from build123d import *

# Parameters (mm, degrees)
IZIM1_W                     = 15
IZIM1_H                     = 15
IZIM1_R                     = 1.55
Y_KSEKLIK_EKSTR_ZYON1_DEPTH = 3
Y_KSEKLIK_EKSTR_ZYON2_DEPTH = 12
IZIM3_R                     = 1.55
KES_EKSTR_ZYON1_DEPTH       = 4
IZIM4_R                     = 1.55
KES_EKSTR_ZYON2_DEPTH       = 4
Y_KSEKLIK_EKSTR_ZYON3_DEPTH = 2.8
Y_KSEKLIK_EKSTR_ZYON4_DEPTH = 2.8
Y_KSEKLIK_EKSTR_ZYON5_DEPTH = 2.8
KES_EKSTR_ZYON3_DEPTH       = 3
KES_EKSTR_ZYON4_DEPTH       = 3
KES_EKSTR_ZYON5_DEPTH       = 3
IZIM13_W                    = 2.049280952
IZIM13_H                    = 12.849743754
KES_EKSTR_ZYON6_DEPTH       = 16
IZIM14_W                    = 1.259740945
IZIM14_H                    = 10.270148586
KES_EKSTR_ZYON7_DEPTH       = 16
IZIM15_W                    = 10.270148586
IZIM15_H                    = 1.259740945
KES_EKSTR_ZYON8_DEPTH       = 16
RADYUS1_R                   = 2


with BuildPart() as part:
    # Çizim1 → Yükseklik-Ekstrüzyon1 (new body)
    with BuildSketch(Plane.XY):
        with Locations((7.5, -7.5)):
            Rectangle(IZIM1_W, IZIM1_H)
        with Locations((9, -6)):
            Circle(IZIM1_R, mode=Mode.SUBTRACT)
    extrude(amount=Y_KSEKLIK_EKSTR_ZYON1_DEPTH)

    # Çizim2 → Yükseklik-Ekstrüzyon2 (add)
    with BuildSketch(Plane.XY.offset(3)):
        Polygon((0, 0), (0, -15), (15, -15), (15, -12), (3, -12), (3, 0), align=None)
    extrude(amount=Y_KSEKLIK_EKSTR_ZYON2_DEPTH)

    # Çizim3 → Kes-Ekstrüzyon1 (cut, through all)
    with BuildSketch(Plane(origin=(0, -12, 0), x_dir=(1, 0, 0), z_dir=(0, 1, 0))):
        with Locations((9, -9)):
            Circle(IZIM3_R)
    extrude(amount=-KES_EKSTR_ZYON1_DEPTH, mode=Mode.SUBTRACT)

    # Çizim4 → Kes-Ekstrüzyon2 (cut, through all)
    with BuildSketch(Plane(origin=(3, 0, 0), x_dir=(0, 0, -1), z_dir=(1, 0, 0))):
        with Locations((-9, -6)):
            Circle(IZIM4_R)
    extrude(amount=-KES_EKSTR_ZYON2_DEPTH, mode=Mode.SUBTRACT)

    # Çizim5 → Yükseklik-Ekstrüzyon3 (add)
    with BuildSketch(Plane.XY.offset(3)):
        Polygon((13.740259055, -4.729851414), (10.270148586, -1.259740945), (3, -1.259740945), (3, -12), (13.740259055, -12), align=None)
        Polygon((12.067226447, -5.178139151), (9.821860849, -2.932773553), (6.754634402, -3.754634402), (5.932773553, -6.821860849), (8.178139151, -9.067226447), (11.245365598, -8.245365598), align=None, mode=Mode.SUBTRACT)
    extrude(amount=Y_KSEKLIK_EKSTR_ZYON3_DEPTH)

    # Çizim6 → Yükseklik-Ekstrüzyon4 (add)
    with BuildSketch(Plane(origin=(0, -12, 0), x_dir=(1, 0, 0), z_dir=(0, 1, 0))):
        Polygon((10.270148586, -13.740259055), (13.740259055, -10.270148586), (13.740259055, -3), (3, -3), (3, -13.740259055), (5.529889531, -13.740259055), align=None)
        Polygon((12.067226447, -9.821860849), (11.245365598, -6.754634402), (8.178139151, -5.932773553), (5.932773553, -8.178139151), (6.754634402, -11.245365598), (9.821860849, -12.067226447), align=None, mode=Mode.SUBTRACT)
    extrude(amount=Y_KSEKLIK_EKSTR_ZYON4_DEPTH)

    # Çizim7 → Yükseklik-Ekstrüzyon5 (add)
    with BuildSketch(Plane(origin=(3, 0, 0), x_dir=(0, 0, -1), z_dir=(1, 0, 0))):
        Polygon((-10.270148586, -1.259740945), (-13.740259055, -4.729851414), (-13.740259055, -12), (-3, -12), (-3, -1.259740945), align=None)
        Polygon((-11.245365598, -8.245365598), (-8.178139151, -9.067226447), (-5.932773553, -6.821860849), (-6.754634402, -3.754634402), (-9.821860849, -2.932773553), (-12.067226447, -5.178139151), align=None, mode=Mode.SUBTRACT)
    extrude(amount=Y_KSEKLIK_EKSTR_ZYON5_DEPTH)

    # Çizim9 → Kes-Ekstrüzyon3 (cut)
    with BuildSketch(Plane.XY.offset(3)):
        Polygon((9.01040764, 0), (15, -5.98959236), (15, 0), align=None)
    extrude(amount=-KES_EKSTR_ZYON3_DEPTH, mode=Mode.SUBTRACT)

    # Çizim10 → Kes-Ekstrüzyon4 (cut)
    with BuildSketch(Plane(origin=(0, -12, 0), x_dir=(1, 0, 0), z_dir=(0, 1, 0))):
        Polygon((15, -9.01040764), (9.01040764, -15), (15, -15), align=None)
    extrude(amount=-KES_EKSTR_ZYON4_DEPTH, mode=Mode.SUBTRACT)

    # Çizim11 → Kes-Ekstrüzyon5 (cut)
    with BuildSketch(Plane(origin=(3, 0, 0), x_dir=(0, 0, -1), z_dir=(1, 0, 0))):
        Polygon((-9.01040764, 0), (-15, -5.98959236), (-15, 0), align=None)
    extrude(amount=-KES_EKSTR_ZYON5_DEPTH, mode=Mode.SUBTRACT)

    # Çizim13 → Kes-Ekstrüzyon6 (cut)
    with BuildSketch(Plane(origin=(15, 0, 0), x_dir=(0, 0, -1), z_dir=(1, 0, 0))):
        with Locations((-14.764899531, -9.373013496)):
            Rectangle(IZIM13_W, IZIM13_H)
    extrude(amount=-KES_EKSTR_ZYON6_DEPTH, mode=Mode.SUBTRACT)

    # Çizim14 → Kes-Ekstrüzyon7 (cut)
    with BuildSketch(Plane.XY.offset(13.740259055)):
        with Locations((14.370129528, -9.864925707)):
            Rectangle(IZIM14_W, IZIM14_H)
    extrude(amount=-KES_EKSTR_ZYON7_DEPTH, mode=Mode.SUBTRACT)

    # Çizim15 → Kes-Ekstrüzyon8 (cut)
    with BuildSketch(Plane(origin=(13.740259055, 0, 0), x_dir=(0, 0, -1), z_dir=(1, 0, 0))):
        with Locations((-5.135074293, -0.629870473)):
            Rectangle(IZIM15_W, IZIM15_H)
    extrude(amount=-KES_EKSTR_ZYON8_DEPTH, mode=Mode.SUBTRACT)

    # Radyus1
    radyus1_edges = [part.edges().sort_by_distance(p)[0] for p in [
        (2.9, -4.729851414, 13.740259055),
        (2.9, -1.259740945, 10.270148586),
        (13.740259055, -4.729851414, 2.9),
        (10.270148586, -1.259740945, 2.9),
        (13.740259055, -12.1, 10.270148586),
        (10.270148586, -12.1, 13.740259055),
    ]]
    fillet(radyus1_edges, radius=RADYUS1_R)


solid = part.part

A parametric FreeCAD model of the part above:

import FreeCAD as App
import Part
import Sketcher
from FreeCAD import Vector
Q = App.Units.Quantity


def edges_at(feature, points):
    """Names of the edges that pass closest to the given points."""
    edges = feature.Shape.Edges
    near = lambda p: min(range(len(edges)), key=lambda i: edges[i].distToShape(Part.Vertex(*p))[0])
    return sorted({f"Edge{near(p) + 1}" for p in points})

doc = App.newDocument("Part")
body = doc.addObject("PartDesign::Body", "Body")

# Sketch on XY plane
sketch1 = body.newObject("Sketcher::SketchObject", "Sketch")
sketch1.AttachmentSupport = (doc.getObject("XY_Plane"), [""])
sketch1.MapMode = "FlatFace"
sketch1.addGeometry([
    Part.LineSegment(Vector(0, 0, 0), Vector(0, -15, 0)),  # 0
    Part.LineSegment(Vector(0, -15, 0), Vector(15, -15, 0)),  # 1
    Part.LineSegment(Vector(15, -15, 0), Vector(15, 0, 0)),  # 2
    Part.LineSegment(Vector(15, 0, 0), Vector(0, 0, 0)),  # 3
    Part.Circle(Vector(9, -6, 0), Vector(0, 0, 1), 1.55),  # 4
], False)
sketch1.addConstraint([
    Sketcher.Constraint("Coincident", 0, 2, 1, 1),
    Sketcher.Constraint("Coincident", 1, 2, 2, 1),
    Sketcher.Constraint("Coincident", 2, 2, 3, 1),
    Sketcher.Constraint("Coincident", 3, 2, 0, 1),
    Sketcher.Constraint("Vertical", 0),
    Sketcher.Constraint("Horizontal", 1),
    Sketcher.Constraint("Vertical", 2),
    Sketcher.Constraint("Horizontal", 3),
    Sketcher.Constraint("Coincident", 3, 2, -1, 1),
    Sketcher.Constraint("Equal", 3, 0),
    Sketcher.Constraint("Diameter", 4, Q("3.1 mm")),
    Sketcher.Constraint("DistanceX", 1, 1, 1, 2, Q("15 mm")),
    Sketcher.Constraint("DistanceX", -1, 1, 4, 3, Q("9 mm")),
    Sketcher.Constraint("DistanceY", 4, 3, -1, 1, Q("6 mm")),
])
pad1 = body.newObject("PartDesign::Pad", "Pad")
pad1.Profile = sketch1
pad1.Length = 3

# Sketch on XY plane
sketch2 = body.newObject("Sketcher::SketchObject", "Sketch001")
sketch2.AttachmentSupport = (doc.getObject("XY_Plane"), [""])
sketch2.MapMode = "FlatFace"
sketch2.AttachmentOffset = App.Placement(Vector(0, 0, 3), App.Rotation())
sketch2.addGeometry([
    Part.LineSegment(Vector(0, 0, 0), Vector(0, -15, 0)),  # 0
    Part.LineSegment(Vector(0, -15, 0), Vector(15, -15, 0)),  # 1
    Part.LineSegment(Vector(15, -15, 0), Vector(15, -12, 0)),  # 2
    Part.LineSegment(Vector(15, -12, 0), Vector(3, -12, 0)),  # 3
    Part.LineSegment(Vector(3, -12, 0), Vector(3, 0, 0)),  # 4
    Part.LineSegment(Vector(3, 0, 0), Vector(0, 0, 0)),  # 5
], False)
sketch2.addConstraint([
    Sketcher.Constraint("Coincident", 0, 2, 1, 1),
    Sketcher.Constraint("Coincident", 1, 2, 2, 1),
    Sketcher.Constraint("Coincident", 2, 2, 3, 1),
    Sketcher.Constraint("Coincident", 3, 2, 4, 1),
    Sketcher.Constraint("Coincident", 4, 2, 5, 1),
    Sketcher.Constraint("Coincident", 5, 2, 0, 1),
    Sketcher.Constraint("Vertical", 0),
    Sketcher.Constraint("Horizontal", 1),
    Sketcher.Constraint("Vertical", 2),
    Sketcher.Constraint("Horizontal", 3),
    Sketcher.Constraint("Vertical", 4),
    Sketcher.Constraint("Horizontal", 5),
    Sketcher.Constraint("Coincident", 5, 2, -1, 1),
    Sketcher.Constraint("Equal", 1, 0),
    Sketcher.Constraint("Equal", 5, 2),
    Sketcher.Constraint("DistanceX", 1, 1, 1, 2, Q("15 mm")),
    Sketcher.Constraint("DistanceX", 3, 2, 3, 1, Q("12 mm")),
])
pad2 = body.newObject("PartDesign::Pad", "Pad001")
pad2.Profile = sketch2
pad2.Length = 12

# Sketch on XZ plane
sketch3 = body.newObject("Sketcher::SketchObject", "Sketch002")
sketch3.AttachmentSupport = (doc.getObject("XZ_Plane"), [""])
sketch3.MapMode = "FlatFace"
sketch3.AttachmentOffset = App.Placement(Vector(0, 0, 12), App.Rotation())
sketch3.addGeometry(Part.Circle(Vector(9, 9, 0), Vector(0, 0, 1), 1.55), False)
sketch3.addConstraint([
    Sketcher.Constraint("Diameter", 0, Q("3.1 mm")),
    Sketcher.Constraint("DistanceX", -1, 1, 0, 3, Q("9 mm")),
    Sketcher.Constraint("DistanceY", -1, 1, 0, 3, Q("9 mm")),
])
pocket1 = body.newObject("PartDesign::Pocket", "Pocket")
pocket1.Profile = sketch3
pocket1.Type = "ThroughAll"
pocket1.Reversed = True

# Sketch on YZ plane
sketch4 = body.newObject("Sketcher::SketchObject", "Sketch003")
sketch4.AttachmentSupport = (doc.getObject("YZ_Plane"), [""])
sketch4.MapMode = "FlatFace"
sketch4.AttachmentOffset = App.Placement(Vector(0, 0, 3), App.Rotation())
sketch4.addGeometry(Part.Circle(Vector(-6, 9, 0), Vector(0, 0, 1), 1.55), False)
sketch4.addConstraint([
    Sketcher.Constraint("Diameter", 0, Q("3.1 mm")),
    Sketcher.Constraint("DistanceX", 0, 3, -1, 1, Q("6 mm")),
    Sketcher.Constraint("DistanceY", -1, 1, 0, 3, Q("9 mm")),
])
pocket2 = body.newObject("PartDesign::Pocket", "Pocket001")
pocket2.Profile = sketch4
pocket2.Type = "ThroughAll"

# Sketch on XY plane
sketch5 = body.newObject("Sketcher::SketchObject", "Sketch004")
sketch5.AttachmentSupport = (doc.getObject("XY_Plane"), [""])
sketch5.MapMode = "FlatFace"
sketch5.AttachmentOffset = App.Placement(Vector(0, 0, 3), App.Rotation())
sketch5.addGeometry([
    Part.LineSegment(Vector(13.740259, -4.729851, 0), Vector(10.270149, -1.259741, 0)),  # 0
    Part.LineSegment(Vector(10.270149, -1.259741, 0), Vector(3, -1.259741, 0)),  # 1
    Part.LineSegment(Vector(3, -1.259741, 0), Vector(3, -12, 0)),  # 2
    Part.LineSegment(Vector(3, -12, 0), Vector(13.740259, -12, 0)),  # 3
    Part.LineSegment(Vector(13.740259, -12, 0), Vector(13.740259, -4.729851, 0)),  # 4
    Part.LineSegment(Vector(9.821861, -2.932774, 0), Vector(12.067226, -5.178139, 0)),  # 5
    Part.LineSegment(Vector(12.067226, -5.178139, 0), Vector(11.245366, -8.245366, 0)),  # 6
    Part.LineSegment(Vector(11.245366, -8.245366, 0), Vector(8.178139, -9.067226, 0)),  # 7
    Part.LineSegment(Vector(8.178139, -9.067226, 0), Vector(5.932774, -6.821861, 0)),  # 8
    Part.LineSegment(Vector(5.932774, -6.821861, 0), Vector(6.754634, -3.754634, 0)),  # 9
    Part.LineSegment(Vector(6.754634, -3.754634, 0), Vector(9.821861, -2.932774, 0)),  # 10
], False)
sketch5.addConstraint([
    Sketcher.Constraint("Coincident", 0, 2, 1, 1),
    Sketcher.Constraint("Coincident", 1, 2, 2, 1),
    Sketcher.Constraint("Coincident", 2, 2, 3, 1),
    Sketcher.Constraint("Coincident", 3, 2, 4, 1),
    Sketcher.Constraint("Coincident", 4, 2, 0, 1),
    Sketcher.Constraint("Coincident", 5, 2, 6, 1),
    Sketcher.Constraint("Coincident", 6, 2, 7, 1),
    Sketcher.Constraint("Coincident", 7, 2, 8, 1),
    Sketcher.Constraint("Coincident", 8, 2, 9, 1),
    Sketcher.Constraint("Coincident", 9, 2, 10, 1),
    Sketcher.Constraint("Coincident", 10, 2, 5, 1),
    Sketcher.Constraint("Horizontal", 1),
    Sketcher.Constraint("Vertical", 2),
    Sketcher.Constraint("Horizontal", 3),
    Sketcher.Constraint("Vertical", 4),
    Sketcher.Constraint("Parallel", 0, 5),
    Sketcher.Constraint("Parallel", 5, 8),
    Sketcher.Constraint("Parallel", 6, 9),
    Sketcher.Constraint("Parallel", 7, 10),
    Sketcher.Constraint("Equal", 3, 2),
    Sketcher.Constraint("Equal", 1, 4),
    Sketcher.Constraint("Equal", 5, 6),
    Sketcher.Constraint("Equal", 6, 7),
    Sketcher.Constraint("Equal", 7, 8),
    Sketcher.Constraint("Angle", 6, Q("-105 deg")),
    Sketcher.Constraint("Angle", 7, Q("-165 deg")),
    Sketcher.Constraint("DistanceX", -1, 1, 1, 2, Q("3 mm")),
    Sketcher.Constraint("DistanceY", 2, 2, -1, 1, Q("12 mm")),
    Sketcher.Constraint("DistanceX", 1, 2, 1, 1, Q("7.270149 mm")),
    Sketcher.Constraint("DistanceX", 3, 1, 3, 2, Q("10.740259 mm")),
    Sketcher.Constraint("DistanceY", 5, 2, 0, 2, Q("3.918398 mm")),
    Sketcher.Constraint("DistanceX", 10, 2, 4, 2, Q("3.918398 mm")),
    Sketcher.Constraint("DistanceX", -1, 1, 7, 2, Q("8.178139 mm")),
])
pad3 = body.newObject("PartDesign::Pad", "Pad002")
pad3.Profile = sketch5
pad3.Length = 2.8

# Sketch on XZ plane
sketch6 = body.newObject("Sketcher::SketchObject", "Sketch005")
sketch6.AttachmentSupport = (doc.getObject("XZ_Plane"), [""])
sketch6.MapMode = "FlatFace"
sketch6.AttachmentOffset = App.Placement(Vector(0, 0, 12), App.Rotation())
sketch6.addGeometry([
    Part.LineSegment(Vector(10.270149, 13.740259, 0), Vector(13.740259, 10.270149, 0)),  # 0
    Part.LineSegment(Vector(13.740259, 10.270149, 0), Vector(13.740259, 3, 0)),  # 1
    Part.LineSegment(Vector(13.740259, 3, 0), Vector(3, 3, 0)),  # 2
    Part.LineSegment(Vector(3, 3, 0), Vector(3, 13.740259, 0)),  # 3
    Part.LineSegment(Vector(3, 13.740259, 0), Vector(10.270149, 13.740259, 0)),  # 4
    Part.LineSegment(Vector(11.245366, 6.754634, 0), Vector(12.067226, 9.821861, 0)),  # 5
    Part.LineSegment(Vector(12.067226, 9.821861, 0), Vector(9.821861, 12.067226, 0)),  # 6
    Part.LineSegment(Vector(9.821861, 12.067226, 0), Vector(6.754634, 11.245366, 0)),  # 7
    Part.LineSegment(Vector(6.754634, 11.245366, 0), Vector(5.932774, 8.178139, 0)),  # 8
    Part.LineSegment(Vector(5.932774, 8.178139, 0), Vector(8.178139, 5.932774, 0)),  # 9
    Part.LineSegment(Vector(8.178139, 5.932774, 0), Vector(11.245366, 6.754634, 0)),  # 10
], False)
sketch6.addConstraint([
    Sketcher.Constraint("Coincident", 0, 2, 1, 1),
    Sketcher.Constraint("Coincident", 1, 2, 2, 1),
    Sketcher.Constraint("Coincident", 2, 2, 3, 1),
    Sketcher.Constraint("Coincident", 3, 2, 4, 1),
    Sketcher.Constraint("Coincident", 4, 2, 0, 1),
    Sketcher.Constraint("Coincident", 5, 2, 6, 1),
    Sketcher.Constraint("Coincident", 6, 2, 7, 1),
    Sketcher.Constraint("Coincident", 7, 2, 8, 1),
    Sketcher.Constraint("Coincident", 8, 2, 9, 1),
    Sketcher.Constraint("Coincident", 9, 2, 10, 1),
    Sketcher.Constraint("Coincident", 10, 2, 5, 1),
    Sketcher.Constraint("Vertical", 1),
    Sketcher.Constraint("Horizontal", 2),
    Sketcher.Constraint("Vertical", 3),
    Sketcher.Constraint("Horizontal", 4),
    Sketcher.Constraint("Parallel", 0, 6),
    Sketcher.Constraint("Parallel", 5, 8),
    Sketcher.Constraint("Parallel", 6, 9),
    Sketcher.Constraint("Parallel", 7, 10),
    Sketcher.Constraint("Equal", 4, 1),
    Sketcher.Constraint("Equal", 2, 3),
    Sketcher.Constraint("Equal", 5, 6),
    Sketcher.Constraint("Equal", 6, 7),
    Sketcher.Constraint("Equal", 7, 8),
    Sketcher.Constraint("Angle", 5, Q("75 deg")),
    Sketcher.Constraint("Angle", 7, Q("-165 deg")),
    Sketcher.Constraint("DistanceY", -1, 1, 1, 2, Q("3 mm")),
    Sketcher.Constraint("DistanceX", -1, 1, 2, 2, Q("3 mm")),
    Sketcher.Constraint("DistanceX", 2, 2, 2, 1, Q("10.740259 mm")),
    Sketcher.Constraint("DistanceX", 4, 1, 4, 2, Q("7.270149 mm")),
    Sketcher.Constraint("DistanceY", 5, 2, 4, 2, Q("3.918398 mm")),
    Sketcher.Constraint("DistanceX", 6, 2, 0, 2, Q("3.918398 mm")),
    Sketcher.Constraint("DistanceY", -1, 1, 8, 2, Q("8.178139 mm")),
])
pad4 = body.newObject("PartDesign::Pad", "Pad003")
pad4.Profile = sketch6
pad4.Length = 2.8
pad4.Reversed = True

# Sketch on YZ plane
sketch7 = body.newObject("Sketcher::SketchObject", "Sketch006")
sketch7.AttachmentSupport = (doc.getObject("YZ_Plane"), [""])
sketch7.MapMode = "FlatFace"
sketch7.AttachmentOffset = App.Placement(Vector(0, 0, 3), App.Rotation())
sketch7.addGeometry([
    Part.LineSegment(Vector(-1.259741, 10.270149, 0), Vector(-4.729851, 13.740259, 0)),  # 0
    Part.LineSegment(Vector(-4.729851, 13.740259, 0), Vector(-12, 13.740259, 0)),  # 1
    Part.LineSegment(Vector(-12, 13.740259, 0), Vector(-12, 3, 0)),  # 2
    Part.LineSegment(Vector(-12, 3, 0), Vector(-1.259741, 3, 0)),  # 3
    Part.LineSegment(Vector(-1.259741, 3, 0), Vector(-1.259741, 10.270149, 0)),  # 4
    Part.LineSegment(Vector(-9.067226, 8.178139, 0), Vector(-8.245366, 11.245366, 0)),  # 5
    Part.LineSegment(Vector(-8.245366, 11.245366, 0), Vector(-5.178139, 12.067226, 0)),  # 6
    Part.LineSegment(Vector(-5.178139, 12.067226, 0), Vector(-2.932774, 9.821861, 0)),  # 7
    Part.LineSegment(Vector(-2.932774, 9.821861, 0), Vector(-3.754634, 6.754634, 0)),  # 8
    Part.LineSegment(Vector(-3.754634, 6.754634, 0), Vector(-6.821861, 5.932774, 0)),  # 9
    Part.LineSegment(Vector(-6.821861, 5.932774, 0), Vector(-9.067226, 8.178139, 0)),  # 10
], False)
sketch7.addConstraint([
    Sketcher.Constraint("Coincident", 0, 2, 1, 1),
    Sketcher.Constraint("Coincident", 1, 2, 2, 1),
    Sketcher.Constraint("Coincident", 2, 2, 3, 1),
    Sketcher.Constraint("Coincident", 3, 2, 4, 1),
    Sketcher.Constraint("Coincident", 4, 2, 0, 1),
    Sketcher.Constraint("Coincident", 5, 2, 6, 1),
    Sketcher.Constraint("Coincident", 6, 2, 7, 1),
    Sketcher.Constraint("Coincident", 7, 2, 8, 1),
    Sketcher.Constraint("Coincident", 8, 2, 9, 1),
    Sketcher.Constraint("Coincident", 9, 2, 10, 1),
    Sketcher.Constraint("Coincident", 10, 2, 5, 1),
    Sketcher.Constraint("Horizontal", 1),
    Sketcher.Constraint("Vertical", 2),
    Sketcher.Constraint("Horizontal", 3),
    Sketcher.Constraint("Vertical", 4),
    Sketcher.Constraint("Parallel", 0, 7),
    Sketcher.Constraint("Parallel", 5, 8),
    Sketcher.Constraint("Parallel", 6, 9),
    Sketcher.Constraint("Parallel", 7, 10),
    Sketcher.Constraint("Equal", 3, 2),
    Sketcher.Constraint("Equal", 1, 4),
    Sketcher.Constraint("Equal", 5, 6),
    Sketcher.Constraint("Equal", 6, 7),
    Sketcher.Constraint("Equal", 7, 8),
    Sketcher.Constraint("Angle", 5, Q("75 deg")),
    Sketcher.Constraint("Angle", 6, Q("15 deg")),
    Sketcher.Constraint("DistanceX", 1, 2, -1, 1, Q("12 mm")),
    Sketcher.Constraint("DistanceY", -1, 1, 2, 2, Q("3 mm")),
    Sketcher.Constraint("DistanceX", 1, 2, 1, 1, Q("7.270149 mm")),
    Sketcher.Constraint("DistanceX", 3, 1, 3, 2, Q("10.740259 mm")),
    Sketcher.Constraint("DistanceX", 6, 2, 4, 2, Q("3.918398 mm")),
    Sketcher.Constraint("DistanceY", 7, 2, 0, 2, Q("3.918398 mm")),
    Sketcher.Constraint("DistanceX", 9, 2, -1, 1, Q("6.821861 mm")),
])
pad5 = body.newObject("PartDesign::Pad", "Pad004")
pad5.Profile = sketch7
pad5.Length = 2.8

# Sketch on XY plane
sketch8 = body.newObject("Sketcher::SketchObject", "Sketch007")
sketch8.AttachmentSupport = (doc.getObject("XY_Plane"), [""])
sketch8.MapMode = "FlatFace"
sketch8.AttachmentOffset = App.Placement(Vector(0, 0, 3), App.Rotation())
sketch8.addGeometry([
    Part.LineSegment(Vector(9.010408, 0, 0), Vector(15, -5.989592, 0)),
    Part.LineSegment(Vector(15, -5.989592, 0), Vector(15, 0, 0)),
    Part.LineSegment(Vector(15, 0, 0), Vector(9.010408, 0, 0)),
], False)
sketch8.addConstraint([
    Sketcher.Constraint("Coincident", 0, 2, 1, 1),
    Sketcher.Constraint("Coincident", 1, 2, 2, 1),
    Sketcher.Constraint("Coincident", 2, 2, 0, 1),
    Sketcher.Constraint("Vertical", 1),
    Sketcher.Constraint("Horizontal", 2),
    Sketcher.Constraint("PointOnObject", 1, 2, -1),
    Sketcher.Constraint("Equal", 2, 1),
    Sketcher.Constraint("DistanceX", -1, 1, 0, 2, Q("15 mm")),
    Sketcher.Constraint("DistanceX", 2, 2, 2, 1, Q("5.989592 mm")),
])
pocket3 = body.newObject("PartDesign::Pocket", "Pocket002")
pocket3.Profile = sketch8
pocket3.Length = 3

# Sketch on XZ plane
sketch9 = body.newObject("Sketcher::SketchObject", "Sketch008")
sketch9.AttachmentSupport = (doc.getObject("XZ_Plane"), [""])
sketch9.MapMode = "FlatFace"
sketch9.AttachmentOffset = App.Placement(Vector(0, 0, 12), App.Rotation())
sketch9.addGeometry([
    Part.LineSegment(Vector(15, 9.010408, 0), Vector(9.010408, 15, 0)),
    Part.LineSegment(Vector(9.010408, 15, 0), Vector(15, 15, 0)),
    Part.LineSegment(Vector(15, 15, 0), Vector(15, 9.010408, 0)),
], False)
sketch9.addConstraint([
    Sketcher.Constraint("Coincident", 0, 2, 1, 1),
    Sketcher.Constraint("Coincident", 1, 2, 2, 1),
    Sketcher.Constraint("Coincident", 2, 2, 0, 1),
    Sketcher.Constraint("Horizontal", 1),
    Sketcher.Constraint("Vertical", 2),
    Sketcher.Constraint("Equal", 1, 2),
    Sketcher.Constraint("DistanceY", -1, 1, 0, 2, Q("15 mm")),
    Sketcher.Constraint("DistanceX", -1, 1, 1, 2, Q("15 mm")),
    Sketcher.Constraint("DistanceX", 1, 1, 1, 2, Q("5.989592 mm")),
])
pocket4 = body.newObject("PartDesign::Pocket", "Pocket003")
pocket4.Profile = sketch9
pocket4.Length = 3
pocket4.Reversed = True

# Sketch on YZ plane
sketch10 = body.newObject("Sketcher::SketchObject", "Sketch009")
sketch10.AttachmentSupport = (doc.getObject("YZ_Plane"), [""])
sketch10.MapMode = "FlatFace"
sketch10.AttachmentOffset = App.Placement(Vector(0, 0, 3), App.Rotation())
sketch10.addGeometry([
    Part.LineSegment(Vector(-5.989592, 15, 0), Vector(0, 9.010408, 0)),
    Part.LineSegment(Vector(0, 9.010408, 0), Vector(0, 15, 0)),
    Part.LineSegment(Vector(0, 15, 0), Vector(-5.989592, 15, 0)),
], False)
sketch10.addConstraint([
    Sketcher.Constraint("Coincident", 0, 2, 1, 1),
    Sketcher.Constraint("Coincident", 1, 2, 2, 1),
    Sketcher.Constraint("Coincident", 2, 2, 0, 1),
    Sketcher.Constraint("Vertical", 1),
    Sketcher.Constraint("Horizontal", 2),
    Sketcher.Constraint("PointOnObject", 0, 2, -2),
    Sketcher.Constraint("Equal", 2, 1),
    Sketcher.Constraint("DistanceY", -1, 1, 1, 2, Q("15 mm")),
    Sketcher.Constraint("DistanceX", 2, 2, 2, 1, Q("5.989592 mm")),
])
pocket5 = body.newObject("PartDesign::Pocket", "Pocket004")
pocket5.Profile = sketch10
pocket5.Length = 3

# Sketch on YZ plane
sketch11 = body.newObject("Sketcher::SketchObject", "Sketch010")
sketch11.AttachmentSupport = (doc.getObject("YZ_Plane"), [""])
sketch11.MapMode = "FlatFace"
sketch11.AttachmentOffset = App.Placement(Vector(0, 0, 15), App.Rotation())
sketch11.addGeometry([
    Part.LineSegment(Vector(-2.948142, 15.78954, 0), Vector(-15.797885, 15.78954, 0)),
    Part.LineSegment(Vector(-15.797885, 15.78954, 0), Vector(-15.797885, 13.740259, 0)),
    Part.LineSegment(Vector(-15.797885, 13.740259, 0), Vector(-2.948142, 13.740259, 0)),
    Part.LineSegment(Vector(-2.948142, 13.740259, 0), Vector(-2.948142, 15.78954, 0)),
], False)
sketch11.addConstraint([
    Sketcher.Constraint("Coincident", 0, 2, 1, 1),
    Sketcher.Constraint("Coincident", 1, 2, 2, 1),
    Sketcher.Constraint("Coincident", 2, 2, 3, 1),
    Sketcher.Constraint("Coincident", 3, 2, 0, 1),
    Sketcher.Constraint("Horizontal", 0),
    Sketcher.Constraint("Vertical", 1),
    Sketcher.Constraint("Horizontal", 2),
    Sketcher.Constraint("Vertical", 3),
    Sketcher.Constraint("DistanceY", 1, 2, 1, 1, Q("2.049281 mm")),
    Sketcher.Constraint("DistanceX", 0, 2, 0, 1, Q("12.849744 mm")),
    Sketcher.Constraint("DistanceY", -1, 1, 0, 2, Q("15.78954 mm")),
    Sketcher.Constraint("DistanceX", 2, 2, -1, 1, Q("2.948142 mm")),
])
pocket6 = body.newObject("PartDesign::Pocket", "Pocket005")
pocket6.Profile = sketch11
pocket6.Length = 16

# Sketch on XY plane
sketch12 = body.newObject("Sketcher::SketchObject", "Sketch011")
sketch12.AttachmentSupport = (doc.getObject("XY_Plane"), [""])
sketch12.MapMode = "FlatFace"
sketch12.AttachmentOffset = App.Placement(Vector(0, 0, 13.740259), App.Rotation())
sketch12.addGeometry([
    Part.LineSegment(Vector(13.740259, -4.729851, 0), Vector(13.740259, -15, 0)),
    Part.LineSegment(Vector(13.740259, -15, 0), Vector(15, -15, 0)),
    Part.LineSegment(Vector(15, -15, 0), Vector(15, -4.729851, 0)),
    Part.LineSegment(Vector(15, -4.729851, 0), Vector(13.740259, -4.729851, 0)),
], False)
sketch12.addConstraint([
    Sketcher.Constraint("Coincident", 0, 2, 1, 1),
    Sketcher.Constraint("Coincident", 1, 2, 2, 1),
    Sketcher.Constraint("Coincident", 2, 2, 3, 1),
    Sketcher.Constraint("Coincident", 3, 2, 0, 1),
    Sketcher.Constraint("Vertical", 0),
    Sketcher.Constraint("Horizontal", 1),
    Sketcher.Constraint("Vertical", 2),
    Sketcher.Constraint("Horizontal", 3),
    Sketcher.Constraint("DistanceY", 0, 2, -1, 1, Q("15 mm")),
    Sketcher.Constraint("DistanceX", -1, 1, 1, 2, Q("15 mm")),
    Sketcher.Constraint("DistanceX", 1, 1, 1, 2, Q("1.259741 mm")),
    Sketcher.Constraint("DistanceY", 0, 2, 0, 1, Q("10.270149 mm")),
])
pocket7 = body.newObject("PartDesign::Pocket", "Pocket006")
pocket7.Profile = sketch12
pocket7.Length = 16

# Sketch on YZ plane
sketch13 = body.newObject("Sketcher::SketchObject", "Sketch012")
sketch13.AttachmentSupport = (doc.getObject("YZ_Plane"), [""])
sketch13.MapMode = "FlatFace"
sketch13.AttachmentOffset = App.Placement(Vector(0, 0, 13.740259), App.Rotation())
sketch13.addGeometry([
    Part.LineSegment(Vector(0, 10.270149, 0), Vector(-1.259741, 10.270149, 0)),
    Part.LineSegment(Vector(-1.259741, 10.270149, 0), Vector(-1.259741, 0, 0)),
    Part.LineSegment(Vector(-1.259741, 0, 0), Vector(0, 0, 0)),
    Part.LineSegment(Vector(0, 0, 0), Vector(0, 10.270149, 0)),
], False)
sketch13.addConstraint([
    Sketcher.Constraint("Coincident", 0, 2, 1, 1),
    Sketcher.Constraint("Coincident", 1, 2, 2, 1),
    Sketcher.Constraint("Coincident", 2, 2, 3, 1),
    Sketcher.Constraint("Coincident", 3, 2, 0, 1),
    Sketcher.Constraint("Horizontal", 0),
    Sketcher.Constraint("Vertical", 1),
    Sketcher.Constraint("Horizontal", 2),
    Sketcher.Constraint("Vertical", 3),
    Sketcher.Constraint("Coincident", 2, 2, -1, 1),
    Sketcher.Constraint("DistanceX", 0, 2, 0, 1, Q("1.259741 mm")),
    Sketcher.Constraint("DistanceY", 1, 2, 1, 1, Q("10.270149 mm")),
])
pocket8 = body.newObject("PartDesign::Pocket", "Pocket007")
pocket8.Profile = sketch13
pocket8.Length = 16
doc.recompute()

fillet = body.newObject("PartDesign::Fillet", "Fillet")
fillet.Base = (pocket8, edges_at(pocket8, [
    (2.9, -4.73, 13.74),
    (1.5, -1.26, 10.27),
    (13.74, -4.73, 1.5),
    (10.27, -1.26, 1.5),
    (13.74, -13.5, 10.27),
    (10.27, -12.1, 13.74),
]))
fillet.Radius = 2

doc.recompute()
